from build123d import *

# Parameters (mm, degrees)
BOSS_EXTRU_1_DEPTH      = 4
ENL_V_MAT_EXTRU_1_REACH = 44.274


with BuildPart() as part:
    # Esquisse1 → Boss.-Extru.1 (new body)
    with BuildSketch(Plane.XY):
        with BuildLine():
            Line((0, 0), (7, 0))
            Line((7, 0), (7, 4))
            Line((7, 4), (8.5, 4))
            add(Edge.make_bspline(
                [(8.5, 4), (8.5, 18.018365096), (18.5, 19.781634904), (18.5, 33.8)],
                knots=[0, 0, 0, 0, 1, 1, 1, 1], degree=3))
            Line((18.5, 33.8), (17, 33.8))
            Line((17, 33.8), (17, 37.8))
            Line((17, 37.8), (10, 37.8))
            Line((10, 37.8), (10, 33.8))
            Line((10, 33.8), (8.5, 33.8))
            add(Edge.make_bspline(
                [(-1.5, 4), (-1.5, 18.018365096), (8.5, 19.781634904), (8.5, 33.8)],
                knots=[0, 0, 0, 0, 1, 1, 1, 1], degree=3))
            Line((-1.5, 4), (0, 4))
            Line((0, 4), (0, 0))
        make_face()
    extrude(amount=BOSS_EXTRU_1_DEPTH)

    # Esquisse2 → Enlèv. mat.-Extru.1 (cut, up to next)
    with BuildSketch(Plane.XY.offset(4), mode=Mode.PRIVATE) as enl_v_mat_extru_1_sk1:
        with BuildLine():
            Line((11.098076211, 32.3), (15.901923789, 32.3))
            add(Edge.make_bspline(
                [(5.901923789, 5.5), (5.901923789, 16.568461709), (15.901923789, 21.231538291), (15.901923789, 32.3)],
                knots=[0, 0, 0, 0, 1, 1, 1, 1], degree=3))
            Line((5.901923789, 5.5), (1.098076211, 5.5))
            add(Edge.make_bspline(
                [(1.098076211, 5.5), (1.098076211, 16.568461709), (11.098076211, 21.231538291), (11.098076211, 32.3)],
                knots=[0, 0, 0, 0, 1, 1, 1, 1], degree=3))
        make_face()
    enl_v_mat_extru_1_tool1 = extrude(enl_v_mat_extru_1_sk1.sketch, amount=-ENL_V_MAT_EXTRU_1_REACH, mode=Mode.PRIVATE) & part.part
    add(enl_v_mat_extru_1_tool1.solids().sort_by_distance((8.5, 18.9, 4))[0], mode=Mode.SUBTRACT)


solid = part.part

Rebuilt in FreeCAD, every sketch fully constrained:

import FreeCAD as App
import Part
import Sketcher
from FreeCAD import Vector
Q = App.Units.Quantity

doc = App.newDocument("Part")
body = doc.addObject("PartDesign::Body", "Body")

# Sketch on XY plane
sketch1 = body.newObject("Sketcher::SketchObject", "Sketch")
sketch1.AttachmentSupport = (doc.getObject("XY_Plane"), [""])
sketch1.MapMode = "FlatFace"
sketch1.addGeometry([
    Part.LineSegment(Vector(0, 0, 0), Vector(7, 0, 0)),  # 0
    Part.LineSegment(Vector(7, 0, 0), Vector(7, 4, 0)),  # 1
    Part.LineSegment(Vector(7, 4, 0), Vector(8.5, 4, 0)),  # 2
    Part.BSplineCurve([Vector(8.5, 4, 0), Vector(8.5, 18.018365, 0), Vector(18.5, 19.781635, 0), Vector(18.5, 33.8, 0)], [4, 4], [0, 1], False, 3, [1, 1, 1, 1], False),  # 3
    Part.LineSegment(Vector(18.5, 33.8, 0), Vector(17, 33.8, 0)),  # 4
    Part.LineSegment(Vector(17, 33.8, 0), Vector(17, 37.8, 0)),  # 5
    Part.LineSegment(Vector(17, 37.8, 0), Vector(10, 37.8, 0)),  # 6
    Part.LineSegment(Vector(10, 37.8, 0), Vector(10, 33.8, 0)),  # 7
    Part.LineSegment(Vector(10, 33.8, 0), Vector(8.5, 33.8, 0)),  # 8
    Part.BSplineCurve([Vector(-1.5, 4, 0), Vector(-1.5, 18.018365, 0), Vector(8.5, 19.781635, 0), Vector(8.5, 33.8, 0)], [4, 4], [0, 1], False, 3, [1, 1, 1, 1], False),  # 9
    Part.LineSegment(Vector(-1.5, 4, 0), Vector(0, 4, 0)),  # 10
    Part.LineSegment(Vector(0, 4, 0), Vector(0, 0, 0)),  # 11
], False)
sketch1.addConstraint([
    Sketcher.Constraint("Block", 3),
    Sketcher.Constraint("Block", 9),
    Sketcher.Constraint("Coincident", 0, 2, 1, 1),
    Sketcher.Constraint("Coincident", 1, 2, 2, 1),
    Sketcher.Constraint("Coincident", 2, 2, 3, 1),
    Sketcher.Constraint("Coincident", 3, 2, 4, 1),
    Sketcher.Constraint("Coincident", 4, 2, 5, 1),
    Sketcher.Constraint("Coincident", 5, 2, 6, 1),
    Sketcher.Constraint("Coincident", 6, 2, 7, 1),
    Sketcher.Constraint("Coincident", 7, 2, 8, 1),
    Sketcher.Constraint("Coincident", 8, 2, 9, 2),
    Sketcher.Constraint("Coincident", 9, 1, 10, 1),
    Sketcher.Constraint("Coincident", 10, 2, 11, 1),
    Sketcher.Constraint("Coincident", 11, 2, 0, 1),
    Sketcher.Constraint("Horizontal", 0),
    Sketcher.Constraint("Vertical", 1),
    Sketcher.Constraint("Horizontal", 2),
    Sketcher.Constraint("Horizontal", 4),
    Sketcher.Constraint("Vertical", 5),
    Sketcher.Constraint("Horizontal", 6),
    Sketcher.Constraint("Vertical", 7),
    Sketcher.Constraint("Horizontal", 8),
    Sketcher.Constraint("Horizontal", 10),
    Sketcher.Constraint("Vertical", 11),
    Sketcher.Constraint("Coincident", 11, 2, -1, 1),
    Sketcher.Constraint("DistanceX", 0, 1, 0, 2, Q("7 mm")),
    Sketcher.Constraint("DistanceX", 6, 2, 6, 1, Q("7 mm")),
    Sketcher.Constraint("DistanceY", 5, 1, 5, 2, Q("4 mm")),
    Sketcher.Constraint("DistanceX", 4, 2, 4, 1, Q("1.5 mm")),
])
pad1 = body.newObject("PartDesign::Pad", "Pad")
pad1.Profile = sketch1
pad1.Length = 4

# Sketch on XY plane
sketch2 = body.newObject("Sketcher::SketchObject", "Sketch001")
sketch2.AttachmentSupport = (doc.getObject("XY_Plane"), [""])
sketch2.MapMode = "FlatFace"
sketch2.AttachmentOffset = App.Placement(Vector(0, 0, 4), App.Rotation())
sketch2.addGeometry([
    Part.LineSegment(Vector(15.901924, 32.3, 0), Vector(11.098076, 32.3, 0)),
    Part.BSplineCurve([Vector(1.098076, 5.5, 0), Vector(1.098076, 16.568462, 0), Vector(11.098076, 21.231538, 0), Vector(11.098076, 32.3, 0)], [4, 4], [0, 1], False, 3, [1, 1, 1, 1], False),
    Part.LineSegment(Vector(1.098076, 5.5, 0), Vector(5.901924, 5.5, 0)),
    Part.BSplineCurve([Vector(5.901924, 5.5, 0), Vector(5.901924, 16.568462, 0), Vector(15.901924, 21.231538, 0), Vector(15.901924, 32.3, 0)], [4, 4], [0, 1], False, 3, [1, 1, 1, 1], False),
], False)
sketch2.addConstraint([
    Sketcher.Constraint("Block", 1),
    Sketcher.Constraint("Block", 3),
    Sketcher.Constraint("Coincident", 0, 2, 1, 2),
    Sketcher.Constraint("Coincident", 1, 1, 2, 1),
    Sketcher.Constraint("Coincident", 2, 2, 3, 1),
    Sketcher.Constraint("Coincident", 3, 2, 0, 1),
])
pocket1 = body.newObject("PartDesign::Pocket", "Pocket")
pocket1.Profile = sketch2
pocket1.Type = "UpToFirst"

doc.recompute()
